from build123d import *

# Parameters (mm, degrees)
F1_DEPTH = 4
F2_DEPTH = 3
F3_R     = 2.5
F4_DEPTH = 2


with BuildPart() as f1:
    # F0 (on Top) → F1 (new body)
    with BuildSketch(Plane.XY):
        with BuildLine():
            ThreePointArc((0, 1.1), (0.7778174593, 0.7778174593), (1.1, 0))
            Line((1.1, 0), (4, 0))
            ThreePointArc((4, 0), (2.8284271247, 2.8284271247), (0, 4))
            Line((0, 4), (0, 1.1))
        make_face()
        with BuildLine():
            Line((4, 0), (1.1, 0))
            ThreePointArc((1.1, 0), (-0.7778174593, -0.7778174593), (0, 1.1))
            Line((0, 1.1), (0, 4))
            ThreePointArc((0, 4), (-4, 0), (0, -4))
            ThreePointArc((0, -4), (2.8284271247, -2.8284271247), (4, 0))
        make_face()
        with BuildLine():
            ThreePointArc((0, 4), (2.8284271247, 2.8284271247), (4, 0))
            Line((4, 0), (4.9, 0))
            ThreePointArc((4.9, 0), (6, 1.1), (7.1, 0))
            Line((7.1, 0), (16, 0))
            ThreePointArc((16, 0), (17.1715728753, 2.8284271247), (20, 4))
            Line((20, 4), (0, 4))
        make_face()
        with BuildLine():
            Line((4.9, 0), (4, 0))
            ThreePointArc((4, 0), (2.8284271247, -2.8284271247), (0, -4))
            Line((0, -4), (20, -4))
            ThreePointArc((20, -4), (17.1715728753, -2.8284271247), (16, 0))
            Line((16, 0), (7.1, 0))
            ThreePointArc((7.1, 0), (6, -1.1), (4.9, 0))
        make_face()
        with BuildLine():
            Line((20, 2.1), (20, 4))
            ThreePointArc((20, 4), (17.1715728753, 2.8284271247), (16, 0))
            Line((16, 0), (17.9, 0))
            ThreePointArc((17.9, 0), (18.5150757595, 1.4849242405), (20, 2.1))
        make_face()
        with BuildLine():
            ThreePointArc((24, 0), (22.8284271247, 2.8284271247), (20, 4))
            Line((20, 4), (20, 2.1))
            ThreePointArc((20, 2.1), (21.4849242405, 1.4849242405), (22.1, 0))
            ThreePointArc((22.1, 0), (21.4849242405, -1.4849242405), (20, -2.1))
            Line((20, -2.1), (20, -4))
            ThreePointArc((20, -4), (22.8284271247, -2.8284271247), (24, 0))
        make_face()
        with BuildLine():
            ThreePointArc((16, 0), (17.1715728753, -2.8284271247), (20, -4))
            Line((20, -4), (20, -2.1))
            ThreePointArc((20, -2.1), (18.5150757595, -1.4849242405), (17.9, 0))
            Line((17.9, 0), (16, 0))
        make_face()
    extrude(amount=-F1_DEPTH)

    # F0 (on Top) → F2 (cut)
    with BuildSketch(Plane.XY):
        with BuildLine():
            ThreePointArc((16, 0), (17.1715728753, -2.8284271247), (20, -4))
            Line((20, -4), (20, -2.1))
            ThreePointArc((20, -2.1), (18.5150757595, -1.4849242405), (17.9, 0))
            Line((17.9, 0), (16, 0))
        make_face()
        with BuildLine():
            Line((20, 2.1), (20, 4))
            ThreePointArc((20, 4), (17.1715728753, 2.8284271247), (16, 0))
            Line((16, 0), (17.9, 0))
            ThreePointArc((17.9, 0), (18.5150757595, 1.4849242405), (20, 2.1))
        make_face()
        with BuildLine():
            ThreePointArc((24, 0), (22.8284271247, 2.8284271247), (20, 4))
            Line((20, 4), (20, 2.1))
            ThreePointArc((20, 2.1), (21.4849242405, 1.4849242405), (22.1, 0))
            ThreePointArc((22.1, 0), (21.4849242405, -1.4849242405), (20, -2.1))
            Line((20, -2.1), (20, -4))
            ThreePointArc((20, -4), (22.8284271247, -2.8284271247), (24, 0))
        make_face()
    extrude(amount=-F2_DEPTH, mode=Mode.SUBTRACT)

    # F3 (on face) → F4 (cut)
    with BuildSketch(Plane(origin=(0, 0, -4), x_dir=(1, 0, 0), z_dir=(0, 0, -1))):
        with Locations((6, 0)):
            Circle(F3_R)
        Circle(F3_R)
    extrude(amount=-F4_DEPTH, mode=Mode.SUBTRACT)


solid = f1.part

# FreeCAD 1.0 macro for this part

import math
import FreeCAD as App
import Part
import Sketcher

V = App.Vector
Q = App.Units.Quantity

doc = App.newDocument("Part")
body = doc.addObject("PartDesign::Body", "Body")

sketch1 = doc.addObject("Sketcher::SketchObject", "Sketch")
body.addObject(sketch1)
sketch1.AttachmentSupport = (doc.XY_Plane, [""])
sketch1.MapMode = "FlatFace"
sketch1.addGeometry(Part.LineSegment(V(0, -4, 0), V(20, -4, 0)), False)
sketch1.addGeometry(Part.ArcOfCircle(Part.Circle(V(20, 0, 0), V(0, 0, 1), 4), math.radians(-90), math.radians(0)), False)
sketch1.addGeometry(Part.ArcOfCircle(Part.Circle(V(20, 0, 0), V(0, 0, 1), 4), math.radians(0), math.radians(90)), False)
sketch1.addGeometry(Part.LineSegment(V(20, 4, 0), V(0, 4, 0)), False)
sketch1.addGeometry(Part.ArcOfCircle(Part.Circle(V(0, 0, 0), V(0, 0, 1), 4), math.radians(90), math.radians(270)), False)
sketch1.addGeometry(Part.ArcOfCircle(Part.Circle(V(0, 0, 0), V(0, 0, 1), 1.1), math.radians(0), math.radians(90)), False)
sketch1.addGeometry(Part.ArcOfCircle(Part.Circle(V(0, 0, 0), V(0, 0, 1), 1.1), math.radians(90), math.radians(360)), False)
sketch1.addGeometry(Part.Circle(V(6, 0, 0), V(0, 0, 1), 1.1), False)
sketch1.addGeometry(Part.ArcOfCircle(Part.Circle(V(20, 0, 0), V(0, 0, 1), 2.1), math.radians(-90), math.radians(0)), False)
sketch1.addGeometry(Part.ArcOfCircle(Part.Circle(V(20, 0, 0), V(0, 0, 1), 2.1), math.radians(180), math.radians(270)), False)
sketch1.addGeometry(Part.ArcOfCircle(Part.Circle(V(20, 0, 0), V(0, 0, 1), 2.1), math.radians(90), math.radians(180)), False)
sketch1.addGeometry(Part.ArcOfCircle(Part.Circle(V(20, 0, 0), V(0, 0, 1), 2.1), math.radians(0), math.radians(90)), False)
sketch1.addConstraint(Sketcher.Constraint("Tangent", 0, 2, 1, 1))
sketch1.addConstraint(Sketcher.Constraint("Tangent", 1, 2, 2, 1))
sketch1.addConstraint(Sketcher.Constraint("Tangent", 2, 2, 3, 1))
sketch1.addConstraint(Sketcher.Constraint("Tangent", 3, 2, 4, 1))
sketch1.addConstraint(Sketcher.Constraint("Tangent", 4, 2, 0, 1))
sketch1.addConstraint(Sketcher.Constraint("Tangent", 5, 1, 6, 2))
sketch1.addConstraint(Sketcher.Constraint("Coincident", 6, 1, 5, 2))
sketch1.addConstraint(Sketcher.Constraint("Tangent", 8, 1, 9, 2))
sketch1.addConstraint(Sketcher.Constraint("Tangent", 9, 1, 10, 2))
sketch1.addConstraint(Sketcher.Constraint("Tangent", 10, 1, 11, 2))
sketch1.addConstraint(Sketcher.Constraint("Tangent", 11, 1, 8, 2))
sketch1.addConstraint(Sketcher.Constraint("Horizontal", 0))
sketch1.addConstraint(Sketcher.Constraint("Horizontal", 3))
sketch1.addConstraint(Sketcher.Constraint("Coincident", 4, 3, -1, 1))
sketch1.addConstraint(Sketcher.Constraint("Coincident", 5, 3, -1, 1))
sketch1.addConstraint(Sketcher.Constraint("Coincident", 8, 3, 1, 3))
sketch1.addConstraint(Sketcher.Constraint("Equal", 1, 2))
sketch1.addConstraint(Sketcher.Constraint("Equal", 6, 7))
sketch1.addConstraint(Sketcher.Constraint("Equal", 8, 9))
sketch1.addConstraint(Sketcher.Constraint("PointOnObject", 7, 3, -1))
sketch1.addConstraint(Sketcher.Constraint("PointOnObject", 1, 2, -1))
sketch1.addConstraint(Sketcher.Constraint("PointOnObject", 5, 1, -1))
sketch1.addConstraint(Sketcher.Constraint("PointOnObject", 6, 1, -2))
sketch1.addConstraint(Sketcher.Constraint("PointOnObject", 9, 1, -1))
sketch1.addConstraint(Sketcher.Constraint("PointOnObject", 11, 1, -1))
sketch1.addConstraint(Sketcher.Constraint("Vertical", 2, 2, 8, 1))
sketch1.addConstraint(Sketcher.Constraint("Vertical", 8, 1, 10, 1))
sketch1.addConstraint(Sketcher.Constraint("Radius", 1, Q("4 mm")))
sketch1.addConstraint(Sketcher.Constraint("Diameter", 7, Q("2.2 mm")))
sketch1.addConstraint(Sketcher.Constraint("Radius", 8, Q("2.1 mm")))
sketch1.addConstraint(Sketcher.Constraint("DistanceX", 0, 1, 0, 2, Q("20 mm")))
sketch1.addConstraint(Sketcher.Constraint("DistanceX", -1, 1, 7, 3, Q("6 mm")))
pad1 = doc.addObject("PartDesign::Pad", "Pad")
body.addObject(pad1)
pad1.Profile = sketch1
pad1.Length = 4
pad1.Reversed = True

sketch2 = doc.addObject("Sketcher::SketchObject", "Sketch001")
body.addObject(sketch2)
sketch2.AttachmentSupport = (doc.XY_Plane, [""])
sketch2.MapMode = "FlatFace"
sketch2.addGeometry(Part.ArcOfCircle(Part.Circle(V(20, 0, 0), V(0, 0, 1), 4), math.radians(180), math.radians(270)), False)
sketch2.addGeometry(Part.ArcOfCircle(Part.Circle(V(20, 0, 0), V(0, 0, 1), 4), math.radians(-90), math.radians(0)), False)
sketch2.addGeometry(Part.ArcOfCircle(Part.Circle(V(20, 0, 0), V(0, 0, 1), 4), math.radians(0), math.radians(90)), False)
sketch2.addGeometry(Part.ArcOfCircle(Part.Circle(V(20, 0, 0), V(0, 0, 1), 4), math.radians(90), math.radians(180)), False)
sketch2.addGeometry(Part.ArcOfCircle(Part.Circle(V(20, 0, 0), V(0, 0, 1), 2.1), math.radians(180), math.radians(270)), False)
sketch2.addGeometry(Part.ArcOfCircle(Part.Circle(V(20, 0, 0), V(0, 0, 1), 2.1), math.radians(90), math.radians(180)), False)
sketch2.addGeometry(Part.ArcOfCircle(Part.Circle(V(20, 0, 0), V(0, 0, 1), 2.1), math.radians(0), math.radians(90)), False)
sketch2.addGeometry(Part.ArcOfCircle(Part.Circle(V(20, 0, 0), V(0, 0, 1), 2.1), math.radians(-90), math.radians(0)), False)
sketch2.addConstraint(Sketcher.Constraint("Tangent", 0, 2, 1, 1))
sketch2.addConstraint(Sketcher.Constraint("Tangent", 1, 2, 2, 1))
sketch2.addConstraint(Sketcher.Constraint("Tangent", 2, 2, 3, 1))
sketch2.addConstraint(Sketcher.Constraint("Tangent", 3, 2, 0, 1))
sketch2.addConstraint(Sketcher.Constraint("Tangent", 4, 1, 5, 2))
sketch2.addConstraint(Sketcher.Constraint("Tangent", 5, 1, 6, 2))
sketch2.addConstraint(Sketcher.Constraint("Tangent", 6, 1, 7, 2))
sketch2.addConstraint(Sketcher.Constraint("Tangent", 7, 1, 4, 2))
sketch2.addConstraint(Sketcher.Constraint("Coincident", 4, 3, 0, 3))
sketch2.addConstraint(Sketcher.Constraint("Equal", 0, 1))
sketch2.addConstraint(Sketcher.Constraint("Equal", 4, 5))
sketch2.addConstraint(Sketcher.Constraint("Symmetric", 0, 2, 2, 2, -1))
sketch2.addConstraint(Sketcher.Constraint("PointOnObject", 1, 2, -1))
sketch2.addConstraint(Sketcher.Constraint("PointOnObject", 3, 2, -1))
sketch2.addConstraint(Sketcher.Constraint("PointOnObject", 4, 1, -1))
sketch2.addConstraint(Sketcher.Constraint("PointOnObject", 6, 1, -1))
sketch2.addConstraint(Sketcher.Constraint("Vertical", 7, 3, 0, 2))
sketch2.addConstraint(Sketcher.Constraint("Vertical", 2, 2, 5, 1))
sketch2.addConstraint(Sketcher.Constraint("Vertical", 5, 1, 7, 1))
sketch2.addConstraint(Sketcher.Constraint("Radius", 0, Q("4 mm")))
sketch2.addConstraint(Sketcher.Constraint("Radius", 4, Q("2.1 mm")))
sketch2.addConstraint(Sketcher.Constraint("DistanceX", -1, 1, 0, 3, Q("20 mm")))
pocket1 = doc.addObject("PartDesign::Pocket", "Pocket")
body.addObject(pocket1)
pocket1.Profile = sketch2
pocket1.Length = 3

sketch3 = doc.addObject("Sketcher::SketchObject", "Sketch002")
body.addObject(sketch3)
sketch3.AttachmentSupport = (doc.XY_Plane, [""])
sketch3.MapMode = "FlatFace"
sketch3.AttachmentOffset = App.Placement(V(0, 0, -4), App.Rotation())
sketch3.addGeometry(Part.Circle(V(6, 0, 0), V(0, 0, 1), 2.5), False)
sketch3.addGeometry(Part.Circle(V(0, 0, 0), V(0, 0, 1), 2.5), False)
sketch3.addConstraint(Sketcher.Constraint("Coincident", 1, 3, -1, 1))
sketch3.addConstraint(Sketcher.Constraint("Equal", 0, 1))
sketch3.addConstraint(Sketcher.Constraint("PointOnObject", 0, 3, -1))
sketch3.addConstraint(Sketcher.Constraint("Diameter", 0, Q("5 mm")))
sketch3.addConstraint(Sketcher.Constraint("DistanceX", -1, 1, 0, 3, Q("6 mm")))
pocket2 = doc.addObject("PartDesign::Pocket", "Pocket001")
body.addObject(pocket2)
pocket2.Profile = sketch3
pocket2.Length = 2
pocket2.Reversed = True

doc.recompute()
